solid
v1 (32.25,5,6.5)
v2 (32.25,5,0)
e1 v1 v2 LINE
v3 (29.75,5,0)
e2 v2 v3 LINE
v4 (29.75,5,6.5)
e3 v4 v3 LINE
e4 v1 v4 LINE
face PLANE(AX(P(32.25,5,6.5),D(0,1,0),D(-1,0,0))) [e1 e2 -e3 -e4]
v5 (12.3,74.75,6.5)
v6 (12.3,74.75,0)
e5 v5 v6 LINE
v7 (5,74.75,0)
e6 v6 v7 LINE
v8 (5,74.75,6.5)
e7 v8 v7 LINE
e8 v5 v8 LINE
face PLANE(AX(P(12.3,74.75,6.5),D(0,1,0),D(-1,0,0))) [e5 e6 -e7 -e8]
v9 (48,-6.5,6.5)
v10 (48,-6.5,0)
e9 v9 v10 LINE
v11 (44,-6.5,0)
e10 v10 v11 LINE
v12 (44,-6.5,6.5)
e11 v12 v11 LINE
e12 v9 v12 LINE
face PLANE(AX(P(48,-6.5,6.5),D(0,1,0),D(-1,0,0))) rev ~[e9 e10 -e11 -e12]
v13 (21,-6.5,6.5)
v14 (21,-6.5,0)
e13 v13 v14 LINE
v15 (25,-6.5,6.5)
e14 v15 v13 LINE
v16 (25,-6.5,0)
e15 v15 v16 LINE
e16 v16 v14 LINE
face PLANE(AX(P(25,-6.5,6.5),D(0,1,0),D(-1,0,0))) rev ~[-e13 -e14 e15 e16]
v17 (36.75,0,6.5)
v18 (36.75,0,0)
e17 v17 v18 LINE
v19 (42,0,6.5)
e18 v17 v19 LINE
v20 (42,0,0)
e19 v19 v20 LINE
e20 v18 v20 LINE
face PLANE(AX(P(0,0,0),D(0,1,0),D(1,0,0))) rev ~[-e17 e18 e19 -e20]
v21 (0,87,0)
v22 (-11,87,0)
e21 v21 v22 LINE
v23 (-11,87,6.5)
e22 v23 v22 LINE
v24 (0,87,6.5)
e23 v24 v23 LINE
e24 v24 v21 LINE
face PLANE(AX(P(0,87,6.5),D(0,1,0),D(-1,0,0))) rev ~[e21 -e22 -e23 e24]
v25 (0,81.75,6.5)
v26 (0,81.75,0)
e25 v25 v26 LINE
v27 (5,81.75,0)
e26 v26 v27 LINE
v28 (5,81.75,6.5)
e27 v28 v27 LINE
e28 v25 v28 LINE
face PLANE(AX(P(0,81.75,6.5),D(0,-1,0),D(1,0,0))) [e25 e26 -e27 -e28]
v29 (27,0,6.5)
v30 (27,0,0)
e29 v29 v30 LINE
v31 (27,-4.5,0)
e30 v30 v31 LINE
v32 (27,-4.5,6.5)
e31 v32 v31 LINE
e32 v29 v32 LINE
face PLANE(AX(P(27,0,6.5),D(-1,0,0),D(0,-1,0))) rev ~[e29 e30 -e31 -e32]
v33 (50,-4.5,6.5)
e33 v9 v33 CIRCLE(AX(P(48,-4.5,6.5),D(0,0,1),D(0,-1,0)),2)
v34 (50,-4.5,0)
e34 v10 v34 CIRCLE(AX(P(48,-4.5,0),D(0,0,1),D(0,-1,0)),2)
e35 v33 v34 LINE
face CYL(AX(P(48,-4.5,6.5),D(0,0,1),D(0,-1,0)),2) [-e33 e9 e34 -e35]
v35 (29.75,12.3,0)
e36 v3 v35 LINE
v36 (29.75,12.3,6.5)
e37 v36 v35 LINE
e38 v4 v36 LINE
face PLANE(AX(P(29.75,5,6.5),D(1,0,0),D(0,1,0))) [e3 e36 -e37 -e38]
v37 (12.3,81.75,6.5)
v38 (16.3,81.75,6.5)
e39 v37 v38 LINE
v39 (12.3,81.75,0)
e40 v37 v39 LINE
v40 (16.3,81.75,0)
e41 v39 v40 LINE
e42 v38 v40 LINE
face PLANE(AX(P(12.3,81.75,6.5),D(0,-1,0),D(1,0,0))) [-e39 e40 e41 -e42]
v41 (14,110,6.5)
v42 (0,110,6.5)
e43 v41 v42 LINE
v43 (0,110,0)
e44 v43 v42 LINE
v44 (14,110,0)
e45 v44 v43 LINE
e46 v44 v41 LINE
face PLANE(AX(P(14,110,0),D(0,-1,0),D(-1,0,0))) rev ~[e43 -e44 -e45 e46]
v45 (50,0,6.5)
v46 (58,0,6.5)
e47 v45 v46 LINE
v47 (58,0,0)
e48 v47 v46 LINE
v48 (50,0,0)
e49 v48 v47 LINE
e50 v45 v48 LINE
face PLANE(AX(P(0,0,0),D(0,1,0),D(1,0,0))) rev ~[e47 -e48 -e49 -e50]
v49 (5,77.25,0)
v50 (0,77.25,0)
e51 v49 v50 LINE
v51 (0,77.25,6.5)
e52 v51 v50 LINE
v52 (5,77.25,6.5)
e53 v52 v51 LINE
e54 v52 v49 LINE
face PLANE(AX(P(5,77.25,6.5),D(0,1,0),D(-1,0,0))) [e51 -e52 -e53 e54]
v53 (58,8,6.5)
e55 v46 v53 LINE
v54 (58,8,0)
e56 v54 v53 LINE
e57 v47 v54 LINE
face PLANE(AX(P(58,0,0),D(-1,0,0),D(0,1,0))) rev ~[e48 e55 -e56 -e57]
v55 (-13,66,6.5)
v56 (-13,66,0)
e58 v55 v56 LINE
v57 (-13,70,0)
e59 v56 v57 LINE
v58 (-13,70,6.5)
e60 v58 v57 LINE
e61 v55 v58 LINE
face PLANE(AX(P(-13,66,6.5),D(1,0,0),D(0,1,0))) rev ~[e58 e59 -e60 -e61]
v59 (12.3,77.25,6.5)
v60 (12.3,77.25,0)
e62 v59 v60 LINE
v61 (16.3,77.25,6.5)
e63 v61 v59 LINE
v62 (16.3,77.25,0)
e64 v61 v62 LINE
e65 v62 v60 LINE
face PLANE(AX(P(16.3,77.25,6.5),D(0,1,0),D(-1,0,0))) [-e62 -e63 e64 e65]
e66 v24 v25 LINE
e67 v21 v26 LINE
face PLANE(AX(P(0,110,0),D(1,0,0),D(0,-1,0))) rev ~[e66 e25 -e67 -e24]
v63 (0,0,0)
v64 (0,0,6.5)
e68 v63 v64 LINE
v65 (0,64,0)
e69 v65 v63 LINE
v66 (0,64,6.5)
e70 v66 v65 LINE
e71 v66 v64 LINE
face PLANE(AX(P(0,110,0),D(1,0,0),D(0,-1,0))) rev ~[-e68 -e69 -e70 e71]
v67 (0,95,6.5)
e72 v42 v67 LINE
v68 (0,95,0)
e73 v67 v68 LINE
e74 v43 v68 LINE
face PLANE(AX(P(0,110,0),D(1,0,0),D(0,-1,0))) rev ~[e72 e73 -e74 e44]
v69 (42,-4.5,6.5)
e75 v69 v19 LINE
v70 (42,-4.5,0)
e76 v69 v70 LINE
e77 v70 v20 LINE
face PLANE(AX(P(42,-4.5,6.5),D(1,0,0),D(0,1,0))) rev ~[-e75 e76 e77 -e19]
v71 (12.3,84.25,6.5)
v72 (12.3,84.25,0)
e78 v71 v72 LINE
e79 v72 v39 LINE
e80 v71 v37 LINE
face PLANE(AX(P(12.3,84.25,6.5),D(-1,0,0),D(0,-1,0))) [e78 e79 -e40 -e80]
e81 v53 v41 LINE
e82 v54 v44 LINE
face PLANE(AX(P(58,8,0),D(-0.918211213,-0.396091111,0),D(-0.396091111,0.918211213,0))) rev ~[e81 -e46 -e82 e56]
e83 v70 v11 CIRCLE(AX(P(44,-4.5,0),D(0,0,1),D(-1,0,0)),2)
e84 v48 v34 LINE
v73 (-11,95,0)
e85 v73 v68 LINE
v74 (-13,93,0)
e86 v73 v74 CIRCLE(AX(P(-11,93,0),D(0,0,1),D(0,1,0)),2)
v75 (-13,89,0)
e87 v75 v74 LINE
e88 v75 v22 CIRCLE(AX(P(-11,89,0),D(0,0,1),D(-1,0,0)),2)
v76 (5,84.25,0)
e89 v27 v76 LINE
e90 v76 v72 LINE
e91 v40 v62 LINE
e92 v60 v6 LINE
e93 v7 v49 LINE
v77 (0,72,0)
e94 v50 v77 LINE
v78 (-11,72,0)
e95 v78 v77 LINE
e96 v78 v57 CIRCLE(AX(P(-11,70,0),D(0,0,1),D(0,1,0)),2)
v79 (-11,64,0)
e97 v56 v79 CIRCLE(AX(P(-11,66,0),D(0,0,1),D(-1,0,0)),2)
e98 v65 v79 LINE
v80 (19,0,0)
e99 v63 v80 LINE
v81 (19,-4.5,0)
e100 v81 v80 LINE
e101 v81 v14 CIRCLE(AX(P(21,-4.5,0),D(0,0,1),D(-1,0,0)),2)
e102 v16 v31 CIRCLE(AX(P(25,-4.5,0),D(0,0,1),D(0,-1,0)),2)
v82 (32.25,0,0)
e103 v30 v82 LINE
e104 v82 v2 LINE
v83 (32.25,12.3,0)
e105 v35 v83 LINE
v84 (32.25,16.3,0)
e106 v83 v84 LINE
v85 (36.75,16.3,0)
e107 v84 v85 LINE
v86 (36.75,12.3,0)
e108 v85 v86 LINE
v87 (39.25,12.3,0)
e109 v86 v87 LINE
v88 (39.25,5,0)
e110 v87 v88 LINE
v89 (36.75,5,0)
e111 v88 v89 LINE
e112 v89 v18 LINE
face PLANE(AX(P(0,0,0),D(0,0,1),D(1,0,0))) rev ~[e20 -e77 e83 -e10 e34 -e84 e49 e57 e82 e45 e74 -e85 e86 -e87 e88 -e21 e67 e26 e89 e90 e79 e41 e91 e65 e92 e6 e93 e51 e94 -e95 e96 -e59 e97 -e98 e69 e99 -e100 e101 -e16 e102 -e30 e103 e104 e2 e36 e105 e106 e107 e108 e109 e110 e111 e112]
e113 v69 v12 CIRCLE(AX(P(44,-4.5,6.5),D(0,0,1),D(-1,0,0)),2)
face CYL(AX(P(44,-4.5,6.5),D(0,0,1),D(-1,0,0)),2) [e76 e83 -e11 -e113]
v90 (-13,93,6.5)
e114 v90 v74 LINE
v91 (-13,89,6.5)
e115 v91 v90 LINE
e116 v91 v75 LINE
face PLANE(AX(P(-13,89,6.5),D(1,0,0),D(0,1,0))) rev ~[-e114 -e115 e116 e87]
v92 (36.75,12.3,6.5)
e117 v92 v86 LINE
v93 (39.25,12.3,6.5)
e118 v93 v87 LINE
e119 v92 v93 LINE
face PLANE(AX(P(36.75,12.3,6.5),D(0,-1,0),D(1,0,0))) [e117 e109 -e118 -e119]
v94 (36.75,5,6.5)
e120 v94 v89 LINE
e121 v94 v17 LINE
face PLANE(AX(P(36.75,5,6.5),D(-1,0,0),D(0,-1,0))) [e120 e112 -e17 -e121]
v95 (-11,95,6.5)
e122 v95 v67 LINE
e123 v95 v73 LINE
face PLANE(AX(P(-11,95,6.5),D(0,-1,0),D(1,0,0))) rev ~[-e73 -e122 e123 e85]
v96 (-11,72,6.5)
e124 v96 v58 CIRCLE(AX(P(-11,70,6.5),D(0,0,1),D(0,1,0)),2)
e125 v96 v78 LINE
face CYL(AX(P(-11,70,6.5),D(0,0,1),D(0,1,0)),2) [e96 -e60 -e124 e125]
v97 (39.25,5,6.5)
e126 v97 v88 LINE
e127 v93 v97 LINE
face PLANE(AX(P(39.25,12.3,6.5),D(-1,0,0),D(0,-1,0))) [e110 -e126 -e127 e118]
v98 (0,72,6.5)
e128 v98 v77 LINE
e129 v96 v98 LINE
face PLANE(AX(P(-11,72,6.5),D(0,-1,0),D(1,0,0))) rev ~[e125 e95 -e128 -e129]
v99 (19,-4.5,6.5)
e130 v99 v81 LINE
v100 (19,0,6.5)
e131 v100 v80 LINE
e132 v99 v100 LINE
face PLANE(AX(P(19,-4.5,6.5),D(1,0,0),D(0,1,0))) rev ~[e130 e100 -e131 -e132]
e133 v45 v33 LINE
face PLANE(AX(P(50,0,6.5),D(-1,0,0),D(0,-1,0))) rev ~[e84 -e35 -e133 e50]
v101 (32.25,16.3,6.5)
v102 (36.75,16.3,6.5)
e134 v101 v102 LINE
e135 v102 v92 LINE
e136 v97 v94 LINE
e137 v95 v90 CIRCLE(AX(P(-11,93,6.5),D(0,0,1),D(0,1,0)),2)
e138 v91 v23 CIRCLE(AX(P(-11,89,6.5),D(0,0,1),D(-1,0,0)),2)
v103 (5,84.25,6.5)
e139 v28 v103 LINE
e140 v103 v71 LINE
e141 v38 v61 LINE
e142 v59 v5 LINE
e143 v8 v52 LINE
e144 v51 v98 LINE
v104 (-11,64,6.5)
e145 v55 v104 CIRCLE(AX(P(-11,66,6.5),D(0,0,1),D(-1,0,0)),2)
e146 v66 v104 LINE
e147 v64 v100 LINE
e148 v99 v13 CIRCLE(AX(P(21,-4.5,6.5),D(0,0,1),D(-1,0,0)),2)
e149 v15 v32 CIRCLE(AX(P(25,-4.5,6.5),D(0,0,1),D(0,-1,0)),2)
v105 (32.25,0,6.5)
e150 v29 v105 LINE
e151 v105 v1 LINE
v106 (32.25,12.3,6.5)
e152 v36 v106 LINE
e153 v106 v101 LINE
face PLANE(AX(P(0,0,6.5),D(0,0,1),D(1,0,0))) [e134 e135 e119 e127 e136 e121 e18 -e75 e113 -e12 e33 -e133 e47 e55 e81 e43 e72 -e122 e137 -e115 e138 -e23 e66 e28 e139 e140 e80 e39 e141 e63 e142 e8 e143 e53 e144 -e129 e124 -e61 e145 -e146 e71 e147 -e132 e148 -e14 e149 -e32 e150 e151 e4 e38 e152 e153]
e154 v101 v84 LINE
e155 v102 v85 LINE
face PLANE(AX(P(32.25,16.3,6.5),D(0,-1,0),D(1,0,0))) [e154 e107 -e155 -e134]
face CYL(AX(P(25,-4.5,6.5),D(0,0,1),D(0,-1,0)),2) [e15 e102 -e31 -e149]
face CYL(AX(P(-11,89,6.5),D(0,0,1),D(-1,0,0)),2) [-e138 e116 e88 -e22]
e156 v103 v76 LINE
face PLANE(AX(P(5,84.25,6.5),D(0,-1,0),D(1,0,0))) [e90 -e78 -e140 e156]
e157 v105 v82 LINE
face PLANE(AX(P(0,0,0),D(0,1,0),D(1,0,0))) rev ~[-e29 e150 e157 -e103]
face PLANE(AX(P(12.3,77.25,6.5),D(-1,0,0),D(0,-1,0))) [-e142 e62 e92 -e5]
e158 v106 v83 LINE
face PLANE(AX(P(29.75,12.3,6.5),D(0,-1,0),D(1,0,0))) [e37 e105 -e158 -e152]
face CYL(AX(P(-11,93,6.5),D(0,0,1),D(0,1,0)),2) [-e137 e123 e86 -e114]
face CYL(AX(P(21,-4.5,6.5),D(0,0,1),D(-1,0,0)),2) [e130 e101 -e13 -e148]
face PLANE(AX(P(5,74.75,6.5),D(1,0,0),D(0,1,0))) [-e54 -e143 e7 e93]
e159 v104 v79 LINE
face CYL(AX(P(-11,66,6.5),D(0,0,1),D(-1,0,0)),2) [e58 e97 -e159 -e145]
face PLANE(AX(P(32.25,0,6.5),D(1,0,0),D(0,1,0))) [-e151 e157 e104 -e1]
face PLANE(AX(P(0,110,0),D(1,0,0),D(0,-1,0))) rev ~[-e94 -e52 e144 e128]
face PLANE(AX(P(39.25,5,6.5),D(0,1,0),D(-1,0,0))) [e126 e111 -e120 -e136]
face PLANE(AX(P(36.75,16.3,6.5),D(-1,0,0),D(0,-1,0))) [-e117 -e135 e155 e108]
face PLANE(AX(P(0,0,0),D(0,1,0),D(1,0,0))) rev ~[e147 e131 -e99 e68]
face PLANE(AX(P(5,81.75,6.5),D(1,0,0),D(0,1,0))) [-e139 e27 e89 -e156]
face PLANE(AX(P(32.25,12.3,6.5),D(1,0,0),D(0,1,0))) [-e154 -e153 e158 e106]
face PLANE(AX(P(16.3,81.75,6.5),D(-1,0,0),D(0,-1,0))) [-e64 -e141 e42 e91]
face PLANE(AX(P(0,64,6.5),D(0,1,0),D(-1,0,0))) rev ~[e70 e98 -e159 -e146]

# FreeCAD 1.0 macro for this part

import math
import FreeCAD as App
import Part
import Sketcher

V = App.Vector


def add_polygon(sketch, points):
    """Adds a closed chain of lines whose ends are joined by coincident constraints."""
    first, n = sketch.GeometryCount, len(points)
    for a, b in zip(points, points[1:] + points[:1]):
        sketch.addGeometry(Part.LineSegment(App.Vector(*a, 0), App.Vector(*b, 0)), False)
    for i in range(n):
        sketch.addConstraint(Sketcher.Constraint("Coincident", first + i, 2, first + (i + 1) % n, 1))

doc = App.newDocument("Part")
body = doc.addObject("PartDesign::Body", "Body")

# Sketch on XY plane
sketch1 = body.newObject("Sketcher::SketchObject", "Sketch")
sketch1.AttachmentSupport = (doc.getObject("XY_Plane"), [""])
sketch1.MapMode = "FlatFace"
add_polygon(sketch1, [(14, 110), (0, 110), (0, 0), (58, 0), (58, 8)])  # lines 0-4
sketch1.addConstraint([
    Sketcher.Constraint("Horizontal", 0),
    Sketcher.Constraint("Vertical", 1),
    Sketcher.Constraint("Horizontal", 2),
    Sketcher.Constraint("Vertical", 3),
    Sketcher.Constraint("Coincident", 1, 2, -1, 1),
    Sketcher.Constraint("DistanceX", 0, 2, 0, 1, 14.0),
    Sketcher.Constraint("DistanceX", 2, 1, 2, 2, 58.0),
    Sketcher.Constraint("DistanceY", 1, 2, 1, 1, 110.0),
    Sketcher.Constraint("DistanceY", 3, 1, 3, 2, 8.0),
])
pad1 = body.newObject("PartDesign::Pad", "Pad")
pad1.Profile = sketch1
pad1.Length = 6.5

# Sketch on XY plane
sketch2 = body.newObject("Sketcher::SketchObject", "Sketch001")
sketch2.AttachmentSupport = (doc.getObject("XY_Plane"), [""])
sketch2.MapMode = "FlatFace"
sketch2.AttachmentOffset = App.Placement(V(0, 0, 6.5), App.Rotation())
sketch2.addGeometry([
    Part.LineSegment(V(50, 0, 0), V(42, 0, 0)),  # 0
    Part.LineSegment(V(42, 0, 0), V(42, -4.5, 0)),  # 1
    Part.ArcOfCircle(Part.Circle(V(44, -4.5, 0), V(0, 0, 1), 2), math.radians(180), math.radians(270)),  # 2
    Part.LineSegment(V(44, -6.5, 0), V(48, -6.5, 0)),  # 3
    Part.ArcOfCircle(Part.Circle(V(48, -4.5, 0), V(0, 0, 1), 2), math.radians(-90), math.radians(0)),  # 4
    Part.LineSegment(V(50, -4.5, 0), V(50, 0, 0)),  # 5
    Part.LineSegment(V(27, 0, 0), V(19, 0, 0)),  # 6
    Part.LineSegment(V(19, 0, 0), V(19, -4.5, 0)),  # 7
    Part.ArcOfCircle(Part.Circle(V(21, -4.5, 0), V(0, 0, 1), 2), math.radians(180), math.radians(270)),  # 8
    Part.LineSegment(V(21, -6.5, 0), V(25, -6.5, 0)),  # 9
    Part.ArcOfCircle(Part.Circle(V(25, -4.5, 0), V(0, 0, 1), 2), math.radians(-90), math.radians(0)),  # 10
    Part.LineSegment(V(27, -4.5, 0), V(27, 0, 0)),  # 11
    Part.LineSegment(V(0, 64, 0), V(0, 72, 0)),  # 12
    Part.LineSegment(V(0, 72, 0), V(-11, 72, 0)),  # 13
    Part.ArcOfCircle(Part.Circle(V(-11, 70, 0), V(0, 0, 1), 2), math.radians(90), math.radians(180)),  # 14
    Part.LineSegment(V(-13, 70, 0), V(-13, 66, 0)),  # 15
    Part.ArcOfCircle(Part.Circle(V(-11, 66, 0), V(0, 0, 1), 2), math.radians(180), math.radians(270)),  # 16
    Part.LineSegment(V(-11, 64, 0), V(0, 64, 0)),  # 17
    Part.LineSegment(V(0, 87, 0), V(0, 95, 0)),  # 18
    Part.LineSegment(V(0, 95, 0), V(-11, 95, 0)),  # 19
    Part.ArcOfCircle(Part.Circle(V(-11, 93, 0), V(0, 0, 1), 2), math.radians(90), math.radians(180)),  # 20
    Part.LineSegment(V(-13, 93, 0), V(-13, 89, 0)),  # 21
    Part.ArcOfCircle(Part.Circle(V(-11, 89, 0), V(0, 0, 1), 2), math.radians(180), math.radians(270)),  # 22
    Part.LineSegment(V(-11, 87, 0), V(0, 87, 0)),  # 23
], False)
sketch2.addConstraint([
    Sketcher.Constraint("Coincident", 0, 2, 1, 1),
    Sketcher.Constraint("Tangent", 1, 2, 2, 1),
    Sketcher.Constraint("Tangent", 2, 2, 3, 1),
    Sketcher.Constraint("Tangent", 3, 2, 4, 1),
    Sketcher.Constraint("Tangent", 4, 2, 5, 1),
    Sketcher.Constraint("Coincident", 5, 2, 0, 1),
    Sketcher.Constraint("Coincident", 6, 2, 7, 1),
    Sketcher.Constraint("Tangent", 7, 2, 8, 1),
    Sketcher.Constraint("Tangent", 8, 2, 9, 1),
    Sketcher.Constraint("Tangent", 9, 2, 10, 1),
    Sketcher.Constraint("Tangent", 10, 2, 11, 1),
    Sketcher.Constraint("Coincident", 11, 2, 6, 1),
    Sketcher.Constraint("Coincident", 12, 2, 13, 1),
    Sketcher.Constraint("Tangent", 13, 2, 14, 1),
    Sketcher.Constraint("Tangent", 14, 2, 15, 1),
    Sketcher.Constraint("Tangent", 15, 2, 16, 1),
    Sketcher.Constraint("Tangent", 16, 2, 17, 1),
    Sketcher.Constraint("Coincident", 17, 2, 12, 1),
    Sketcher.Constraint("Coincident", 18, 2, 19, 1),
    Sketcher.Constraint("Tangent", 19, 2, 20, 1),
    Sketcher.Constraint("Tangent", 20, 2, 21, 1),
    Sketcher.Constraint("Tangent", 21, 2, 22, 1),
    Sketcher.Constraint("Tangent", 22, 2, 23, 1),
    Sketcher.Constraint("Coincident", 23, 2, 18, 1),
    Sketcher.Constraint("Horizontal", 0),
    Sketcher.Constraint("Vertical", 1),
    Sketcher.Constraint("Horizontal", 3),
    Sketcher.Constraint("Vertical", 5),
    Sketcher.Constraint("Horizontal", 6),
    Sketcher.Constraint("Vertical", 7),
    Sketcher.Constraint("Horizontal", 9),
    Sketcher.Constraint("Vertical", 11),
    Sketcher.Constraint("Vertical", 12),
    Sketcher.Constraint("Horizontal", 13),
    Sketcher.Constraint("Vertical", 15),
    Sketcher.Constraint("Horizontal", 17),
    Sketcher.Constraint("Vertical", 18),
    Sketcher.Constraint("Horizontal", 19),
    Sketcher.Constraint("Vertical", 21),
    Sketcher.Constraint("Horizontal", 23),
    Sketcher.Constraint("Equal", 2, 4),
    Sketcher.Constraint("Equal", 4, 8),
    Sketcher.Constraint("Equal", 8, 10),
    Sketcher.Constraint("Equal", 10, 14),
    Sketcher.Constraint("Equal", 14, 16),
    Sketcher.Constraint("Equal", 16, 20),
    Sketcher.Constraint("Equal", 20, 22),
    Sketcher.Constraint("PointOnObject", 0, 2, -1),
    Sketcher.Constraint("PointOnObject", 6, 2, -1),
    Sketcher.Constraint("PointOnObject", 12, 2, -2),
    Sketcher.Constraint("PointOnObject", 18, 2, -2),
    Sketcher.Constraint("Horizontal", 4, 3, 8, 3),
    Sketcher.Constraint("Vertical", 16, 3, 20, 3),
    Sketcher.Constraint("Equal", 0, 6),
    Sketcher.Constraint("Equal", 6, 12),
    Sketcher.Constraint("Equal", 12, 18),
    Sketcher.Constraint("Radius", 2, 2.0),
    Sketcher.Constraint("DistanceX", 0, 2, 0, 1, 8.0),
    Sketcher.Constraint("DistanceX", -1, 1, 6, 2, 19.0),
    Sketcher.Constraint("DistanceX", 14, 2, -1, 1, 13.0),
    Sketcher.Constraint("DistanceX", 10, 3, 2, 3, 19.0),
    Sketcher.Constraint("DistanceY", 14, 3, 22, 3, 19.0),
    Sketcher.Constraint("DistanceY", 2, 2, -1, 1, 6.5),
    Sketcher.Constraint("DistanceY", -1, 1, 14, 3, 70.0),
])
pad2 = body.newObject("PartDesign::Pad", "Pad001")
pad2.Profile = sketch2
pad2.Length = 6.5
pad2.Reversed = True

# Sketch on XY plane
sketch3 = body.newObject("Sketcher::SketchObject", "Sketch002")
sketch3.AttachmentSupport = (doc.getObject("XY_Plane"), [""])
sketch3.MapMode = "FlatFace"
sketch3.AttachmentOffset = App.Placement(V(0, 0, 6.5), App.Rotation())
add_polygon(sketch3, [(5, 81.8), (0, 81.8), (0, 77.2), (5, 77.2), (5, 74.8), (12.3, 74.8), (12.3, 77.2), (16.3, 77.2), (16.3, 81.8), (12.3, 81.8), (12.3, 84.2), (5, 84.2)])  # lines 0-11
add_polygon(sketch3, [(32.2, 5), (32.2, 0), (36.8, 0), (36.8, 5), (39.2, 5), (39.2, 12.3), (36.8, 12.3), (36.8, 16.3), (32.2, 16.3), (32.2, 12.3), (29.8, 12.3), (29.8, 5)])  # lines 12-23
sketch3.addConstraint([
    Sketcher.Constraint("Horizontal", 0),
    Sketcher.Constraint("Vertical", 1),
    Sketcher.Constraint("Horizontal", 2),
    Sketcher.Constraint("Vertical", 3),
    Sketcher.Constraint("Horizontal", 4),
    Sketcher.Constraint("Vertical", 5),
    Sketcher.Constraint("Horizontal", 6),
    Sketcher.Constraint("Vertical", 7),
    Sketcher.Constraint("Horizontal", 8),
    Sketcher.Constraint("Vertical", 9),
    Sketcher.Constraint("Horizontal", 10),
    Sketcher.Constraint("Vertical", 11),
    Sketcher.Constraint("Vertical", 12),
    Sketcher.Constraint("Horizontal", 13),
    Sketcher.Constraint("Vertical", 14),
    Sketcher.Constraint("Horizontal", 15),
    Sketcher.Constraint("Vertical", 16),
    Sketcher.Constraint("Horizontal", 17),
    Sketcher.Constraint("Vertical", 18),
    Sketcher.Constraint("Horizontal", 19),
    Sketcher.Constraint("Vertical", 20),
    Sketcher.Constraint("Horizontal", 21),
    Sketcher.Constraint("Vertical", 22),
    Sketcher.Constraint("Horizontal", 23),
    Sketcher.Constraint("PointOnObject", 0, 2, -2),
    Sketcher.Constraint("PointOnObject", 12, 2, -1),
    Sketcher.Constraint("Horizontal", 2, 2, 5, 2),
    Sketcher.Constraint("Horizontal", 0, 2, 7, 2),
    Sketcher.Constraint("Horizontal", 17, 2, 20, 2),
    Sketcher.Constraint("Horizontal", 15, 2, 22, 2),
    Sketcher.Constraint("Vertical", 5, 2, 8, 2),
    Sketcher.Constraint("Vertical", 3, 2, 10, 2),
    Sketcher.Constraint("Vertical", 14, 2, 17, 2),
    Sketcher.Constraint("Vertical", 12, 2, 19, 2),
    Sketcher.Constraint("Equal", 17, 21),
    Sketcher.Constraint("Equal", 19, 1),
    Sketcher.Constraint("Equal", 23, 3),
    Sketcher.Constraint("Equal", 5, 9),
    Sketcher.Constraint("Equal", 2, 12),
    Sketcher.Constraint("Equal", 10, 16),
    Sketcher.Constraint("Equal", 8, 18),
    Sketcher.Constraint("DistanceX", 0, 2, 0, 1, 5.0),
    Sketcher.Constraint("DistanceX", 6, 1, 6, 2, 4.0),
    Sketcher.Constraint("DistanceX", 4, 1, 4, 2, 7.3),
    Sketcher.Constraint("DistanceX", 13, 1, 13, 2, 4.5),
    Sketcher.Constraint("DistanceX", 15, 1, 15, 2, 2.5),
    Sketcher.Constraint("DistanceY", -1, 1, 0, 2, 81.75),
    Sketcher.Constraint("DistanceX", -1, 1, 12, 2, 32.25),
])
pocket1 = body.newObject("PartDesign::Pocket", "Pocket")
pocket1.Profile = sketch3
pocket1.Type = "ThroughAll"

doc.recompute()
